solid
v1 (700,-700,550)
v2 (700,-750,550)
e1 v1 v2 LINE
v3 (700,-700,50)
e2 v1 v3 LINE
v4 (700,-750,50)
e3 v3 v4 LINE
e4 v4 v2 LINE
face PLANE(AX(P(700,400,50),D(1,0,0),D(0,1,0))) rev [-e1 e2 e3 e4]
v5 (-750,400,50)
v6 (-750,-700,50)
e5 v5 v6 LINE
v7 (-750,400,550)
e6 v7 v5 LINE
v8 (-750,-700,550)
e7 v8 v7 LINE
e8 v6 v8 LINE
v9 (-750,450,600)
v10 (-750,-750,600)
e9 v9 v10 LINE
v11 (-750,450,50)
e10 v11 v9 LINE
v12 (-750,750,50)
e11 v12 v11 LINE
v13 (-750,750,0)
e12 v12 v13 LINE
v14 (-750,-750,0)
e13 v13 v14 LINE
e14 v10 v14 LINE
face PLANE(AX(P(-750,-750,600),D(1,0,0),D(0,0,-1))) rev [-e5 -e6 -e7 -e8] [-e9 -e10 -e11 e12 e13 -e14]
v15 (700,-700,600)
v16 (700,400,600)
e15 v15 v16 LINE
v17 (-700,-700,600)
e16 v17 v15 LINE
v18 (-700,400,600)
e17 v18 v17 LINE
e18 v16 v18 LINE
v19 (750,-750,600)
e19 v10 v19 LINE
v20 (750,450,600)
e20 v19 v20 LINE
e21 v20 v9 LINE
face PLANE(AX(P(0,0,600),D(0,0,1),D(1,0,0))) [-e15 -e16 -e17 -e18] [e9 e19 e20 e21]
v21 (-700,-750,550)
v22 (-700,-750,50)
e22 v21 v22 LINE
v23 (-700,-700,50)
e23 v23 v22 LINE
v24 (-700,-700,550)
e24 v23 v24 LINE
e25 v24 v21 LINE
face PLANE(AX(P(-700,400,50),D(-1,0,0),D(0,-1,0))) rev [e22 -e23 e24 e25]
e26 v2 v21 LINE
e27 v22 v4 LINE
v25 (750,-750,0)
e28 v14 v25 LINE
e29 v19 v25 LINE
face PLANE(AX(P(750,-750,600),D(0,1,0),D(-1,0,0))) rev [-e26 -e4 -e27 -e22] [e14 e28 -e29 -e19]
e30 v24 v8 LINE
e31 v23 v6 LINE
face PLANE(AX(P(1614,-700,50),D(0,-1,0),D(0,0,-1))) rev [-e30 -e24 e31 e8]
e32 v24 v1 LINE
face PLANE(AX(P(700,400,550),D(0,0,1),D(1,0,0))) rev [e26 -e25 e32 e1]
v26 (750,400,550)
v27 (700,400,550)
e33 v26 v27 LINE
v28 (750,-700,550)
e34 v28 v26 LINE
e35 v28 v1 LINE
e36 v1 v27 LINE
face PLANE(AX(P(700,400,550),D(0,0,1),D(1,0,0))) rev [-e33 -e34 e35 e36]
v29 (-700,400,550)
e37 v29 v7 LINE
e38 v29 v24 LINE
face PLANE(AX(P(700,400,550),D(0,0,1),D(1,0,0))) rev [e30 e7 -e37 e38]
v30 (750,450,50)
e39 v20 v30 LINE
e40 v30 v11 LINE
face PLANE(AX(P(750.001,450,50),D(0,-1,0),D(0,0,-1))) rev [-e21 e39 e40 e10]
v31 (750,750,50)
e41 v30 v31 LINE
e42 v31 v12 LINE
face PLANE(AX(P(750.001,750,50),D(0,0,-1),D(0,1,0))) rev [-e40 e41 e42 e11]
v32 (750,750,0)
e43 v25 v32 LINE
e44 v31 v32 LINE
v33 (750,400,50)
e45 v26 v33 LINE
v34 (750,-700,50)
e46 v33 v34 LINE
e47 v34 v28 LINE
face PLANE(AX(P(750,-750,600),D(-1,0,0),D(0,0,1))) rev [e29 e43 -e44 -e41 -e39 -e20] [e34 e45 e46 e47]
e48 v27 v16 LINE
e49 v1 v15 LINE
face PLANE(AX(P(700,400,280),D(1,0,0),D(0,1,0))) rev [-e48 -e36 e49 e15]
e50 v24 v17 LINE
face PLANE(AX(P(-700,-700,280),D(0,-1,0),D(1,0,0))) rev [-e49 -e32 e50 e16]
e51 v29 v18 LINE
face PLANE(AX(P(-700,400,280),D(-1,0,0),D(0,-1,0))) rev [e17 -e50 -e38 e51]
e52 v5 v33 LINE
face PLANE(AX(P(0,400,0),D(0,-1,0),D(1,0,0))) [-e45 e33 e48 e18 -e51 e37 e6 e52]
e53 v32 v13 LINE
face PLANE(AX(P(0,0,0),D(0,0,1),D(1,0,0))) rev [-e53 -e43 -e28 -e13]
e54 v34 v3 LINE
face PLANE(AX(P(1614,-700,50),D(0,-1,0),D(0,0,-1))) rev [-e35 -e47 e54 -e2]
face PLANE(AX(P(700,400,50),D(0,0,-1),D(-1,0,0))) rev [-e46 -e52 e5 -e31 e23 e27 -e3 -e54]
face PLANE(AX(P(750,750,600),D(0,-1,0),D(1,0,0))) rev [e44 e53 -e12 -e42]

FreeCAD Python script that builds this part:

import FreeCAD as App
import Part
import Sketcher
from FreeCAD import Vector
Q = App.Units.Quantity


def add_polygon(sketch, points):
    """Adds a closed chain of lines whose ends are joined by coincident constraints."""
    first, n = sketch.GeometryCount, len(points)
    for a, b in zip(points, points[1:] + points[:1]):
        sketch.addGeometry(Part.LineSegment(App.Vector(*a, 0), App.Vector(*b, 0)), False)
    for i in range(n):
        sketch.addConstraint(Sketcher.Constraint("Coincident", first + i, 2, first + (i + 1) % n, 1))

doc = App.newDocument("Part")
params = doc.addObject("Spreadsheet::Sheet", "Params")
for row, (alias, value) in enumerate([
    ("sketch1_width", "1500 mm"),
    ("pad1_length", "600 mm"),
    ("sketch2_width", "300 mm"),
    ("sketch2_height", "550 mm"),
    ("sketch3_width", "1400 mm"),
    ("sketch3_height", "500 mm"),
    ("pocket2_length", "1150 mm"),
    ("sketch4_width", "1100 mm"),
    ("sketch4_height", "500 mm"),
    ("pocket3_length", "2364 mm"),
    ("sketch5_width", "1400 mm"),
    ("sketch5_height", "1100 mm"),
    ("pocket4_length", "320 mm"),
], start=1):
    params.set(f"A{row}", alias)
    params.set(f"B{row}", "=" + value)
    params.setAlias(f"B{row}", alias)

body = doc.addObject("PartDesign::Body", "Body")

sketch1 = body.newObject("Sketcher::SketchObject", "Sketch")
sketch1.AttachmentSupport = (doc.getObject("XY_Plane"), [""])
sketch1.MapMode = "FlatFace"
add_polygon(sketch1, [(-750, 750), (-750, -750), (750, -750), (750, 750)])
sketch1.addConstraint([
    Sketcher.Constraint("Vertical", 0),
    Sketcher.Constraint("Horizontal", 1),
    Sketcher.Constraint("Vertical", 2),
    Sketcher.Constraint("Horizontal", 3),
    Sketcher.Constraint("Symmetric", 0, 2, 2, 2, -1, 1),
    Sketcher.Constraint("Equal", 3, 0),
    Sketcher.Constraint("DistanceX", 1, 1, 1, 2, Q("1500 mm")),
])
sketch1.setExpression("Constraints[10]", "Params.sketch1_width")
pad1 = body.newObject("PartDesign::Pad", "Pad")
pad1.Profile = sketch1
pad1.setExpression("Length", "Params.pad1_length")

sketch2 = body.newObject("Sketcher::SketchObject", "Sketch001")
sketch2.AttachmentSupport = (doc.getObject("YZ_Plane"), [""])
sketch2.MapMode = "FlatFace"
sketch2.AttachmentOffset = App.Placement(Vector(0, 0, -750), App.Rotation())
add_polygon(sketch2, [(750, 50), (450, 50), (450, 600), (750, 600)])
sketch2.addConstraint([
    Sketcher.Constraint("Horizontal", 0),
    Sketcher.Constraint("Vertical", 1),
    Sketcher.Constraint("Horizontal", 2),
    Sketcher.Constraint("Vertical", 3),
    Sketcher.Constraint("DistanceX", 0, 2, 0, 1, Q("300 mm")),
    Sketcher.Constraint("DistanceY", 1, 1, 1, 2, Q("550 mm")),
    Sketcher.Constraint("DistanceX", -1, 1, 0, 2, Q("450 mm")),
    Sketcher.Constraint("DistanceY", -1, 1, 0, 2, Q("50 mm")),
])
sketch2.setExpression("Constraints[8]", "Params.sketch2_width")
sketch2.setExpression("Constraints[9]", "Params.sketch2_height")
pocket1 = body.newObject("PartDesign::Pocket", "Pocket")
pocket1.Profile = sketch2
pocket1.Type = "UpToFirst"
pocket1.Reversed = True

sketch3 = body.newObject("Sketcher::SketchObject", "Sketch002")
sketch3.AttachmentSupport = (doc.getObject("XZ_Plane"), [""])
sketch3.MapMode = "FlatFace"
sketch3.AttachmentOffset = App.Placement(Vector(0, 0, 750), App.Rotation())
add_polygon(sketch3, [(-700, 550), (-700, 50), (700, 50), (700, 550)])
sketch3.addConstraint([
    Sketcher.Constraint("Vertical", 0),
    Sketcher.Constraint("Horizontal", 1),
    Sketcher.Constraint("Vertical", 2),
    Sketcher.Constraint("Horizontal", 3),
    Sketcher.Constraint("DistanceX", 1, 1, 1, 2, Q("1400 mm")),
    Sketcher.Constraint("DistanceY", 0, 2, 0, 1, Q("500 mm")),
    Sketcher.Constraint("DistanceX", 0, 2, -1, 1, Q("700 mm")),
    Sketcher.Constraint("DistanceY", -1, 1, 0, 2, Q("50 mm")),
])
sketch3.setExpression("Constraints[8]", "Params.sketch3_width")
sketch3.setExpression("Constraints[9]", "Params.sketch3_height")
pocket2 = body.newObject("PartDesign::Pocket", "Pocket001")
pocket2.Profile = sketch3
pocket2.setExpression("Length", "Params.pocket2_length")

sketch4 = body.newObject("Sketcher::SketchObject", "Sketch003")
sketch4.AttachmentSupport = (doc.getObject("YZ_Plane"), [""])
sketch4.MapMode = "FlatFace"
sketch4.AttachmentOffset = App.Placement(Vector(0, 0, -750), App.Rotation())
add_polygon(sketch4, [(400, 50), (-700, 50), (-700, 550), (400, 550)])
sketch4.addConstraint([
    Sketcher.Constraint("Horizontal", 0),
    Sketcher.Constraint("Vertical", 1),
    Sketcher.Constraint("Horizontal", 2),
    Sketcher.Constraint("Vertical", 3),
    Sketcher.Constraint("DistanceX", 0, 2, 0, 1, Q("1100 mm")),
    Sketcher.Constraint("DistanceY", 1, 1, 1, 2, Q("500 mm")),
    Sketcher.Constraint("DistanceX", 0, 2, -1, 1, Q("700 mm")),
    Sketcher.Constraint("DistanceY", -1, 1, 0, 2, Q("50 mm")),
])
sketch4.setExpression("Constraints[8]", "Params.sketch4_width")
sketch4.setExpression("Constraints[9]", "Params.sketch4_height")
pocket3 = body.newObject("PartDesign::Pocket", "Pocket002")
pocket3.Profile = sketch4
pocket3.setExpression("Length", "Params.pocket3_length")
pocket3.Reversed = True

sketch5 = body.newObject("Sketcher::SketchObject", "Sketch004")
sketch5.AttachmentSupport = (doc.getObject("XY_Plane"), [""])
sketch5.MapMode = "FlatFace"
sketch5.AttachmentOffset = App.Placement(Vector(0, 0, 600), App.Rotation())
add_polygon(sketch5, [(-700, 400), (-700, -700), (700, -700), (700, 400)])
sketch5.addConstraint([
    Sketcher.Constraint("Vertical", 0),
    Sketcher.Constraint("Horizontal", 1),
    Sketcher.Constraint("Vertical", 2),
    Sketcher.Constraint("Horizontal", 3),
    Sketcher.Constraint("DistanceX", 1, 1, 1, 2, Q("1400 mm")),
    Sketcher.Constraint("DistanceY", 0, 2, 0, 1, Q("1100 mm")),
    Sketcher.Constraint("DistanceX", 0, 2, -1, 1, Q("700 mm")),
    Sketcher.Constraint("DistanceY", 0, 2, -1, 1, Q("700 mm")),
])
sketch5.setExpression("Constraints[8]", "Params.sketch5_width")
sketch5.setExpression("Constraints[9]", "Params.sketch5_height")
pocket4 = body.newObject("PartDesign::Pocket", "Pocket003")
pocket4.Profile = sketch5
pocket4.setExpression("Length", "Params.pocket4_length")

doc.recompute()
